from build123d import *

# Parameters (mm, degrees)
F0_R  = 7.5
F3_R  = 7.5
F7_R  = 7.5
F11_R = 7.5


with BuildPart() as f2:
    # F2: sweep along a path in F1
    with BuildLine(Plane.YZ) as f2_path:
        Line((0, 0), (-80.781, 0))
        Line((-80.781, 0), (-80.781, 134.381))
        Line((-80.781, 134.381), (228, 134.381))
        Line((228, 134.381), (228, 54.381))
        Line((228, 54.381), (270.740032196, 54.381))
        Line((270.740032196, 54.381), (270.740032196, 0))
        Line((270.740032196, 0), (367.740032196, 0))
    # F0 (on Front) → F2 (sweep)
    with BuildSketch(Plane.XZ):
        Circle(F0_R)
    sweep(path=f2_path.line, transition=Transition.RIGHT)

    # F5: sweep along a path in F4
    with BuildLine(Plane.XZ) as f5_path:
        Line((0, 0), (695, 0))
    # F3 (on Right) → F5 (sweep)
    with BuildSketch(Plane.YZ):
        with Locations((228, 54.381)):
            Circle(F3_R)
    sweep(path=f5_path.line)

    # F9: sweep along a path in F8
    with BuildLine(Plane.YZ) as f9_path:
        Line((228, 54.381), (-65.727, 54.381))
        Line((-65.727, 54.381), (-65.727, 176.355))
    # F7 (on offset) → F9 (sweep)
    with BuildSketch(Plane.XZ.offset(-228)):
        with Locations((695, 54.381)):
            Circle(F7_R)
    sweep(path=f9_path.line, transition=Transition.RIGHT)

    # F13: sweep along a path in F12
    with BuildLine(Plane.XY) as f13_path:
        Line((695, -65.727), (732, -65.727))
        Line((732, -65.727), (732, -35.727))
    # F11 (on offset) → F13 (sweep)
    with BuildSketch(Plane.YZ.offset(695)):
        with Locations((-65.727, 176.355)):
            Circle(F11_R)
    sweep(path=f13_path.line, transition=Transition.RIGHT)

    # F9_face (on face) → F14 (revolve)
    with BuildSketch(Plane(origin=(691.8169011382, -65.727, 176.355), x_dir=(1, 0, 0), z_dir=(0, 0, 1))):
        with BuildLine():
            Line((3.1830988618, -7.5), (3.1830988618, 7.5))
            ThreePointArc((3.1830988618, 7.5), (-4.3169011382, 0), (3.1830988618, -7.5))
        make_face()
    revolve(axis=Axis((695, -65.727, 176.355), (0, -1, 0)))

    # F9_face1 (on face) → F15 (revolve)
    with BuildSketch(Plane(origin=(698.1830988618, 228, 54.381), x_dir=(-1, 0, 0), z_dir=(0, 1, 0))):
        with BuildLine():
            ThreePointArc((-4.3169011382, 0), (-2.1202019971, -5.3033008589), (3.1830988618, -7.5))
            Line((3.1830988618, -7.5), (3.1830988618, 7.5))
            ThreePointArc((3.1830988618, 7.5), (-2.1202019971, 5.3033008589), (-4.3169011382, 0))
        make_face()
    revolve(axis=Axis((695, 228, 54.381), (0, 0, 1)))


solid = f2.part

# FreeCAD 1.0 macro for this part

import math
import FreeCAD as App
import Part
import Sketcher

doc = App.newDocument("Part")
body = doc.addObject("PartDesign::Body", "Body")

# Sketch on XZ plane
sketch1 = body.newObject("Sketcher::SketchObject", "Sketch")
sketch1.AttachmentSupport = (doc.getObject("XZ_Plane"), [""])
sketch1.MapMode = "FlatFace"
sketch1.addGeometry(Part.Circle(App.Vector(0, 0, 0), App.Vector(0, 0, 1), 8), False)
sketch1.addConstraint([
    Sketcher.Constraint("Coincident", 0, 3, -1, 1),
    Sketcher.Constraint("Diameter", 0, 15.0),
])

# Sketch on YZ plane
sketch2 = body.newObject("Sketcher::SketchObject", "Sketch001")
sketch2.AttachmentSupport = (doc.getObject("YZ_Plane"), [""])
sketch2.MapMode = "FlatFace"
sketch2.addGeometry([
    Part.LineSegment(App.Vector(0, 0, 0), App.Vector(-81, 0, 0)),  # 0
    Part.LineSegment(App.Vector(-81, 0, 0), App.Vector(-81, 134, 0)),  # 1
    Part.LineSegment(App.Vector(-81, 134, 0), App.Vector(228, 134, 0)),  # 2
    Part.LineSegment(App.Vector(228, 134, 0), App.Vector(228, 54, 0)),  # 3
    Part.LineSegment(App.Vector(228, 54, 0), App.Vector(271, 54, 0)),  # 4
    Part.LineSegment(App.Vector(271, 54, 0), App.Vector(271, 0, 0)),  # 5
    Part.LineSegment(App.Vector(271, 0, 0), App.Vector(368, 0, 0)),  # 6
], False)
sketch2.addConstraint([
    Sketcher.Constraint("Coincident", 0, 2, 1, 1),
    Sketcher.Constraint("Coincident", 1, 2, 2, 1),
    Sketcher.Constraint("Coincident", 2, 2, 3, 1),
    Sketcher.Constraint("Coincident", 3, 2, 4, 1),
    Sketcher.Constraint("Coincident", 4, 2, 5, 1),
    Sketcher.Constraint("Coincident", 5, 2, 6, 1),
    Sketcher.Constraint("Horizontal", 0),
    Sketcher.Constraint("Vertical", 1),
    Sketcher.Constraint("Horizontal", 2),
    Sketcher.Constraint("Vertical", 3),
    Sketcher.Constraint("Horizontal", 4),
    Sketcher.Constraint("Vertical", 5),
    Sketcher.Constraint("Horizontal", 6),
    Sketcher.Constraint("Coincident", 0, 1, -1, 1),
    Sketcher.Constraint("PointOnObject", 5, 2, -1),
    Sketcher.Constraint("DistanceX", 6, 1, 6, 2, 97.0),
    Sketcher.Constraint("DistanceY", 3, 2, 3, 1, 80.0),
    Sketcher.Constraint("DistanceX", -1, 1, 2, 2, 228.0),
    Sketcher.Constraint("DistanceX", 0, 2, 0, 1, 80.781),
    Sketcher.Constraint("DistanceY", 1, 1, 1, 2, 134.381),
    Sketcher.Constraint("DistanceX", 4, 1, 4, 2, 42.740032),
])
doc.recompute()

additivepipe = body.newObject("PartDesign::AdditivePipe", "AdditivePipe")
additivepipe.Profile = sketch1
additivepipe.Spine = (sketch2, ["Edge1", "Edge2", "Edge3", "Edge4", "Edge5", "Edge6", "Edge7"])
additivepipe.Transition = "Right corner"

# Sketch on YZ plane
sketch3 = body.newObject("Sketcher::SketchObject", "Sketch002")
sketch3.AttachmentSupport = (doc.getObject("YZ_Plane"), [""])
sketch3.MapMode = "FlatFace"
sketch3.addGeometry(Part.Circle(App.Vector(228, 54, 0), App.Vector(0, 0, 1), 8), False)
sketch3.addConstraint([
    Sketcher.Constraint("Diameter", 0, 15.0),
    Sketcher.Constraint("DistanceX", -1, 1, 0, 3, 228.0),
    Sketcher.Constraint("DistanceY", -1, 1, 0, 3, 54.381),
])

# Sketch on XY plane
sketch4 = body.newObject("Sketcher::SketchObject", "Sketch003")
sketch4.AttachmentSupport = (doc.getObject("XY_Plane"), [""])
sketch4.MapMode = "FlatFace"
sketch4.addGeometry(Part.LineSegment(App.Vector(0, 0, 0), App.Vector(695, 0, 0)), False)
sketch4.addConstraint([
    Sketcher.Constraint("Horizontal", 0),
    Sketcher.Constraint("Coincident", 0, 1, -1, 1),
    Sketcher.Constraint("DistanceX", 0, 1, 0, 2, 695.0),
])
doc.recompute()

additivepipe2 = body.newObject("PartDesign::AdditivePipe", "AdditivePipe001")
additivepipe2.Profile = sketch3
additivepipe2.Spine = (sketch4, ["Edge1"])

# Sketch on XZ plane
sketch5 = body.newObject("Sketcher::SketchObject", "Sketch004")
sketch5.AttachmentSupport = (doc.getObject("XZ_Plane"), [""])
sketch5.MapMode = "FlatFace"
sketch5.AttachmentOffset = App.Placement(App.Vector(0, 0, -228), App.Rotation())
sketch5.addGeometry(Part.Circle(App.Vector(695, 54, 0), App.Vector(0, 0, 1), 8), False)
sketch5.addConstraint([
    Sketcher.Constraint("Diameter", 0, 15.0),
    Sketcher.Constraint("DistanceX", -1, 1, 0, 3, 695.0),
    Sketcher.Constraint("DistanceY", -1, 1, 0, 3, 54.381),
])

# Sketch on YZ plane
sketch6 = body.newObject("Sketcher::SketchObject", "Sketch005")
sketch6.AttachmentSupport = (doc.getObject("YZ_Plane"), [""])
sketch6.MapMode = "FlatFace"
sketch6.addGeometry([
    Part.LineSegment(App.Vector(228, 54, 0), App.Vector(-66, 54, 0)),
    Part.LineSegment(App.Vector(-66, 54, 0), App.Vector(-66, 176, 0)),
], False)
sketch6.addConstraint([
    Sketcher.Constraint("Coincident", 0, 2, 1, 1),
    Sketcher.Constraint("Horizontal", 0),
    Sketcher.Constraint("Vertical", 1),
    Sketcher.Constraint("DistanceX", -1, 1, 0, 1, 228.0),
    Sketcher.Constraint("DistanceX", 0, 2, 0, 1, 293.727),
    Sketcher.Constraint("DistanceY", 1, 1, 1, 2, 121.974),
    Sketcher.Constraint("DistanceY", -1, 1, 0, 1, 54.381),
])
doc.recompute()

additivepipe3 = body.newObject("PartDesign::AdditivePipe", "AdditivePipe002")
additivepipe3.Profile = sketch5
additivepipe3.Spine = (sketch6, ["Edge1", "Edge2"])
additivepipe3.Transition = "Right corner"

# Sketch on YZ plane
sketch7 = body.newObject("Sketcher::SketchObject", "Sketch006")
sketch7.AttachmentSupport = (doc.getObject("YZ_Plane"), [""])
sketch7.MapMode = "FlatFace"
sketch7.AttachmentOffset = App.Placement(App.Vector(0, 0, 695), App.Rotation())
sketch7.addGeometry(Part.Circle(App.Vector(-66, 176, 0), App.Vector(0, 0, 1), 8), False)
sketch7.addConstraint([
    Sketcher.Constraint("Diameter", 0, 15.0),
    Sketcher.Constraint("DistanceX", 0, 3, -1, 1, 65.727),
    Sketcher.Constraint("DistanceY", -1, 1, 0, 3, 176.355),
])

# Sketch on XY plane
sketch8 = body.newObject("Sketcher::SketchObject", "Sketch007")
sketch8.AttachmentSupport = (doc.getObject("XY_Plane"), [""])
sketch8.MapMode = "FlatFace"
sketch8.addGeometry([
    Part.LineSegment(App.Vector(695, -66, 0), App.Vector(732, -66, 0)),
    Part.LineSegment(App.Vector(732, -66, 0), App.Vector(732, -36, 0)),
], False)
sketch8.addConstraint([
    Sketcher.Constraint("Coincident", 0, 2, 1, 1),
    Sketcher.Constraint("Horizontal", 0),
    Sketcher.Constraint("Vertical", 1),
    Sketcher.Constraint("DistanceX", 0, 1, 0, 2, 37.0),
    Sketcher.Constraint("DistanceY", 1, 1, 1, 2, 30.0),
    Sketcher.Constraint("DistanceX", -1, 1, 0, 1, 695.0),
    Sketcher.Constraint("DistanceY", 0, 1, -1, 1, 65.727),
])
doc.recompute()

additivepipe4 = body.newObject("PartDesign::AdditivePipe", "AdditivePipe003")
additivepipe4.Profile = sketch7
additivepipe4.Spine = (sketch8, ["Edge1", "Edge2"])
additivepipe4.Transition = "Right corner"

# Sketch on XY plane
sketch9 = body.newObject("Sketcher::SketchObject", "Sketch008")
sketch9.AttachmentSupport = (doc.getObject("XY_Plane"), [""])
sketch9.MapMode = "FlatFace"
sketch9.AttachmentOffset = App.Placement(App.Vector(0, 0, 176.355), App.Rotation())
sketch9.addGeometry([
    Part.LineSegment(App.Vector(695, -73, 0), App.Vector(695, -58, 0)),
    Part.ArcOfCircle(Part.Circle(App.Vector(695, -66, 0), App.Vector(0, 0, 1), 8), math.radians(90), math.radians(270)),
], False)
sketch9.addGeometry(Part.LineSegment(App.Vector(695, -58, 0), App.Vector(695, -73, 0)), True)  # axis
sketch9.addConstraint([
    Sketcher.Constraint("Coincident", 0, 1, 1, 2),
    Sketcher.Constraint("Coincident", 1, 1, 0, 2),
    Sketcher.Constraint("Vertical", 0),
    Sketcher.Constraint("Vertical", 2),
    Sketcher.Constraint("Coincident", 2, 1, 1, 1),
    Sketcher.Constraint("Vertical", 1, 3, 0, 1),
    Sketcher.Constraint("Equal", 0, 2),
    Sketcher.Constraint("Radius", 1, 7.5),
    Sketcher.Constraint("DistanceX", -1, 1, 1, 3, 695.0),
    Sketcher.Constraint("DistanceY", 1, 3, -1, 1, 65.727),
])
revolution = body.newObject("PartDesign::Revolution", "Revolution")
revolution.Profile = sketch9
revolution.ReferenceAxis = (sketch9, ["Axis0"])
revolution.Angle = 360

# Sketch on XZ plane
sketch10 = body.newObject("Sketcher::SketchObject", "Sketch009")
sketch10.AttachmentSupport = (doc.getObject("XZ_Plane"), [""])
sketch10.MapMode = "FlatFace"
sketch10.AttachmentOffset = App.Placement(App.Vector(0, 0, -228), App.Rotation())
sketch10.addGeometry([
    Part.LineSegment(App.Vector(695, 47, 0), App.Vector(695, 62, 0)),
    Part.ArcOfCircle(Part.Circle(App.Vector(695, 54, 0), App.Vector(0, 0, 1), 8), math.radians(-90), math.radians(90)),
], False)
sketch10.addGeometry(Part.LineSegment(App.Vector(695, 47, 0), App.Vector(695, 62, 0)), True)  # axis
sketch10.addConstraint([
    Sketcher.Constraint("Coincident", 0, 1, 1, 1),
    Sketcher.Constraint("Coincident", 1, 2, 0, 2),
    Sketcher.Constraint("Vertical", 0),
    Sketcher.Constraint("Vertical", 2),
    Sketcher.Constraint("Coincident", 2, 1, 0, 1),
    Sketcher.Constraint("Vertical", 1, 3, 0, 1),
    Sketcher.Constraint("Equal", 0, 2),
    Sketcher.Constraint("Radius", 1, 7.5),
    Sketcher.Constraint("DistanceX", -1, 1, 1, 3, 695.0),
    Sketcher.Constraint("DistanceY", -1, 1, 1, 3, 54.381),
])
revolution2 = body.newObject("PartDesign::Revolution", "Revolution001")
revolution2.Profile = sketch10
revolution2.ReferenceAxis = (sketch10, ["Axis0"])
revolution2.Angle = 360

doc.recompute()
